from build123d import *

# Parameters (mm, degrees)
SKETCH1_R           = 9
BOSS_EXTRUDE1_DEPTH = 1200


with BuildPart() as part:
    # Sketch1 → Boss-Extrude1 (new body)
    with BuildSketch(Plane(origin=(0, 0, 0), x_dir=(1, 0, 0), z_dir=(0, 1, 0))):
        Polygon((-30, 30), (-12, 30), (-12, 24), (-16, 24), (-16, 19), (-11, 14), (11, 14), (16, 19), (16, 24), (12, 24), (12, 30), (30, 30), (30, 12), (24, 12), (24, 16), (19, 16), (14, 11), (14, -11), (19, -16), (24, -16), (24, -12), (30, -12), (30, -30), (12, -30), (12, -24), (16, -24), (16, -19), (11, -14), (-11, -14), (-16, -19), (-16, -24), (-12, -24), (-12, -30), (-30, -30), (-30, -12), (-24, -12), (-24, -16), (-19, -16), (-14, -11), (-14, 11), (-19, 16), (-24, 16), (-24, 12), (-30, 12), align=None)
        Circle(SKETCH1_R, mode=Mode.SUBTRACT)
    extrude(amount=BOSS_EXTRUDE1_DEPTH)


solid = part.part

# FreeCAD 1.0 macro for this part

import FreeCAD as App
import Part
import Sketcher

V = App.Vector


def add_polygon(sketch, points):
    """Adds a closed chain of lines whose ends are joined by coincident constraints."""
    first, n = sketch.GeometryCount, len(points)
    for a, b in zip(points, points[1:] + points[:1]):
        sketch.addGeometry(Part.LineSegment(App.Vector(*a, 0), App.Vector(*b, 0)), False)
    for i in range(n):
        sketch.addConstraint(Sketcher.Constraint("Coincident", first + i, 2, first + (i + 1) % n, 1))

doc = App.newDocument("Part")
body = doc.addObject("PartDesign::Body", "Body")

sketch1 = body.newObject("Sketcher::SketchObject", "Sketch")
sketch1.AttachmentSupport = (doc.getObject("XZ_Plane"), [""])
sketch1.MapMode = "FlatFace"
add_polygon(sketch1, [(-12, -30), (-30, -30), (-30, -12), (-24, -12), (-24, -16), (-19, -16), (-14, -11), (-14, 11), (-19, 16), (-24, 16), (-24, 12), (-30, 12), (-30, 30), (-12, 30), (-12, 24), (-16, 24), (-16, 19), (-11, 14), (11, 14), (16, 19), (16, 24), (12, 24), (12, 30), (30, 30), (30, 12), (24, 12), (24, 16), (19, 16), (14, 11), (14, -11), (19, -16), (24, -16), (24, -12), (30, -12), (30, -30), (12, -30), (12, -24), (16, -24), (16, -19), (11, -14), (-11, -14), (-16, -19), (-16, -24), (-12, -24)])
sketch1.addGeometry(Part.Circle(V(0, 0, 0), V(0, 0, 1), 9), False)
sketch1.addConstraint([
    Sketcher.Constraint("Horizontal", 0),
    Sketcher.Constraint("Vertical", 1),
    Sketcher.Constraint("Horizontal", 2),
    Sketcher.Constraint("Vertical", 3),
    Sketcher.Constraint("Horizontal", 4),
    Sketcher.Constraint("Vertical", 6),
    Sketcher.Constraint("Horizontal", 8),
    Sketcher.Constraint("Vertical", 9),
    Sketcher.Constraint("Horizontal", 10),
    Sketcher.Constraint("Vertical", 11),
    Sketcher.Constraint("Horizontal", 12),
    Sketcher.Constraint("Vertical", 13),
    Sketcher.Constraint("Horizontal", 14),
    Sketcher.Constraint("Vertical", 15),
    Sketcher.Constraint("Horizontal", 17),
    Sketcher.Constraint("Vertical", 19),
    Sketcher.Constraint("Horizontal", 20),
    Sketcher.Constraint("Vertical", 21),
    Sketcher.Constraint("Horizontal", 22),
    Sketcher.Constraint("Vertical", 23),
    Sketcher.Constraint("Horizontal", 24),
    Sketcher.Constraint("Vertical", 25),
    Sketcher.Constraint("Horizontal", 26),
    Sketcher.Constraint("Vertical", 28),
    Sketcher.Constraint("Horizontal", 30),
    Sketcher.Constraint("Vertical", 31),
    Sketcher.Constraint("Horizontal", 32),
    Sketcher.Constraint("Vertical", 33),
    Sketcher.Constraint("Horizontal", 34),
    Sketcher.Constraint("Vertical", 35),
    Sketcher.Constraint("Horizontal", 36),
    Sketcher.Constraint("Vertical", 37),
    Sketcher.Constraint("Horizontal", 39),
    Sketcher.Constraint("Vertical", 41),
    Sketcher.Constraint("Horizontal", 42),
    Sketcher.Constraint("Vertical", 43),
    Sketcher.Constraint("Coincident", 44, 3, -1, 1),
    Sketcher.Constraint("Symmetric", 0, 2, 22, 2, -1, 1),
    Sketcher.Constraint("Symmetric", 2, 2, 24, 2, -1, 1),
    Sketcher.Constraint("Symmetric", 4, 2, 26, 2, -1, 1),
    Sketcher.Constraint("Symmetric", 5, 2, 27, 2, -1, 1),
    Sketcher.Constraint("Symmetric", 7, 2, 29, 2, -1, 1),
    Sketcher.Constraint("Symmetric", 9, 2, 31, 2, -1, 1),
    Sketcher.Constraint("Symmetric", 11, 2, 33, 2, -1, 1),
    Sketcher.Constraint("Symmetric", 13, 2, 35, 2, -1, 1),
    Sketcher.Constraint("Symmetric", 15, 2, 37, 2, -1, 1),
    Sketcher.Constraint("Symmetric", 16, 2, 38, 2, -1, 1),
    Sketcher.Constraint("Symmetric", 18, 2, 40, 2, -1, 1),
    Sketcher.Constraint("Symmetric", 20, 2, 42, 2, -1, 1),
    Sketcher.Constraint("Symmetric", 15, 2, 18, 2, -2),
    Sketcher.Constraint("Symmetric", 13, 2, 20, 2, -2),
    Sketcher.Constraint("Symmetric", 11, 2, 22, 2, -2),
    Sketcher.Constraint("Symmetric", 9, 2, 24, 2, -2),
    Sketcher.Constraint("Symmetric", 7, 2, 26, 2, -2),
    Sketcher.Constraint("Perpendicular", 5, 7),
    Sketcher.Constraint("Parallel", 7, 16),
    Sketcher.Constraint("Perpendicular", 16, 18),
    Sketcher.Constraint("Perpendicular", 27, 29),
    Sketcher.Constraint("Perpendicular", 38, 40),
    Sketcher.Constraint("Horizontal", 6, 2, 27, 2),
    Sketcher.Constraint("Equal", 34, 1),
    Sketcher.Constraint("Equal", 42, 3),
    Sketcher.Constraint("Equal", 39, 6),
    Sketcher.Constraint("Equal", 32, 13),
    Sketcher.Constraint("Equal", 30, 15),
    Sketcher.Constraint("Equal", 7, 16),
    Sketcher.Constraint("Diameter", 44, 18.0),
    Sketcher.Constraint("DistanceX", 0, 2, 0, 1, 18.0),
    Sketcher.Constraint("DistanceX", 2, 1, 2, 2, 6.0),
    Sketcher.Constraint("DistanceX", 4, 1, 4, 2, 5.0),
    Sketcher.Constraint("DistanceX", 14, 2, 14, 1, 4.0),
    Sketcher.Constraint("DistanceX", 17, 1, 17, 2, 22.0),
    Sketcher.Constraint("DistanceX", 0, 2, -1, 1, 30.0),
])
pad1 = body.newObject("PartDesign::Pad", "Pad")
pad1.Profile = sketch1
pad1.Length = 1200
pad1.Reversed = True

doc.recompute()
